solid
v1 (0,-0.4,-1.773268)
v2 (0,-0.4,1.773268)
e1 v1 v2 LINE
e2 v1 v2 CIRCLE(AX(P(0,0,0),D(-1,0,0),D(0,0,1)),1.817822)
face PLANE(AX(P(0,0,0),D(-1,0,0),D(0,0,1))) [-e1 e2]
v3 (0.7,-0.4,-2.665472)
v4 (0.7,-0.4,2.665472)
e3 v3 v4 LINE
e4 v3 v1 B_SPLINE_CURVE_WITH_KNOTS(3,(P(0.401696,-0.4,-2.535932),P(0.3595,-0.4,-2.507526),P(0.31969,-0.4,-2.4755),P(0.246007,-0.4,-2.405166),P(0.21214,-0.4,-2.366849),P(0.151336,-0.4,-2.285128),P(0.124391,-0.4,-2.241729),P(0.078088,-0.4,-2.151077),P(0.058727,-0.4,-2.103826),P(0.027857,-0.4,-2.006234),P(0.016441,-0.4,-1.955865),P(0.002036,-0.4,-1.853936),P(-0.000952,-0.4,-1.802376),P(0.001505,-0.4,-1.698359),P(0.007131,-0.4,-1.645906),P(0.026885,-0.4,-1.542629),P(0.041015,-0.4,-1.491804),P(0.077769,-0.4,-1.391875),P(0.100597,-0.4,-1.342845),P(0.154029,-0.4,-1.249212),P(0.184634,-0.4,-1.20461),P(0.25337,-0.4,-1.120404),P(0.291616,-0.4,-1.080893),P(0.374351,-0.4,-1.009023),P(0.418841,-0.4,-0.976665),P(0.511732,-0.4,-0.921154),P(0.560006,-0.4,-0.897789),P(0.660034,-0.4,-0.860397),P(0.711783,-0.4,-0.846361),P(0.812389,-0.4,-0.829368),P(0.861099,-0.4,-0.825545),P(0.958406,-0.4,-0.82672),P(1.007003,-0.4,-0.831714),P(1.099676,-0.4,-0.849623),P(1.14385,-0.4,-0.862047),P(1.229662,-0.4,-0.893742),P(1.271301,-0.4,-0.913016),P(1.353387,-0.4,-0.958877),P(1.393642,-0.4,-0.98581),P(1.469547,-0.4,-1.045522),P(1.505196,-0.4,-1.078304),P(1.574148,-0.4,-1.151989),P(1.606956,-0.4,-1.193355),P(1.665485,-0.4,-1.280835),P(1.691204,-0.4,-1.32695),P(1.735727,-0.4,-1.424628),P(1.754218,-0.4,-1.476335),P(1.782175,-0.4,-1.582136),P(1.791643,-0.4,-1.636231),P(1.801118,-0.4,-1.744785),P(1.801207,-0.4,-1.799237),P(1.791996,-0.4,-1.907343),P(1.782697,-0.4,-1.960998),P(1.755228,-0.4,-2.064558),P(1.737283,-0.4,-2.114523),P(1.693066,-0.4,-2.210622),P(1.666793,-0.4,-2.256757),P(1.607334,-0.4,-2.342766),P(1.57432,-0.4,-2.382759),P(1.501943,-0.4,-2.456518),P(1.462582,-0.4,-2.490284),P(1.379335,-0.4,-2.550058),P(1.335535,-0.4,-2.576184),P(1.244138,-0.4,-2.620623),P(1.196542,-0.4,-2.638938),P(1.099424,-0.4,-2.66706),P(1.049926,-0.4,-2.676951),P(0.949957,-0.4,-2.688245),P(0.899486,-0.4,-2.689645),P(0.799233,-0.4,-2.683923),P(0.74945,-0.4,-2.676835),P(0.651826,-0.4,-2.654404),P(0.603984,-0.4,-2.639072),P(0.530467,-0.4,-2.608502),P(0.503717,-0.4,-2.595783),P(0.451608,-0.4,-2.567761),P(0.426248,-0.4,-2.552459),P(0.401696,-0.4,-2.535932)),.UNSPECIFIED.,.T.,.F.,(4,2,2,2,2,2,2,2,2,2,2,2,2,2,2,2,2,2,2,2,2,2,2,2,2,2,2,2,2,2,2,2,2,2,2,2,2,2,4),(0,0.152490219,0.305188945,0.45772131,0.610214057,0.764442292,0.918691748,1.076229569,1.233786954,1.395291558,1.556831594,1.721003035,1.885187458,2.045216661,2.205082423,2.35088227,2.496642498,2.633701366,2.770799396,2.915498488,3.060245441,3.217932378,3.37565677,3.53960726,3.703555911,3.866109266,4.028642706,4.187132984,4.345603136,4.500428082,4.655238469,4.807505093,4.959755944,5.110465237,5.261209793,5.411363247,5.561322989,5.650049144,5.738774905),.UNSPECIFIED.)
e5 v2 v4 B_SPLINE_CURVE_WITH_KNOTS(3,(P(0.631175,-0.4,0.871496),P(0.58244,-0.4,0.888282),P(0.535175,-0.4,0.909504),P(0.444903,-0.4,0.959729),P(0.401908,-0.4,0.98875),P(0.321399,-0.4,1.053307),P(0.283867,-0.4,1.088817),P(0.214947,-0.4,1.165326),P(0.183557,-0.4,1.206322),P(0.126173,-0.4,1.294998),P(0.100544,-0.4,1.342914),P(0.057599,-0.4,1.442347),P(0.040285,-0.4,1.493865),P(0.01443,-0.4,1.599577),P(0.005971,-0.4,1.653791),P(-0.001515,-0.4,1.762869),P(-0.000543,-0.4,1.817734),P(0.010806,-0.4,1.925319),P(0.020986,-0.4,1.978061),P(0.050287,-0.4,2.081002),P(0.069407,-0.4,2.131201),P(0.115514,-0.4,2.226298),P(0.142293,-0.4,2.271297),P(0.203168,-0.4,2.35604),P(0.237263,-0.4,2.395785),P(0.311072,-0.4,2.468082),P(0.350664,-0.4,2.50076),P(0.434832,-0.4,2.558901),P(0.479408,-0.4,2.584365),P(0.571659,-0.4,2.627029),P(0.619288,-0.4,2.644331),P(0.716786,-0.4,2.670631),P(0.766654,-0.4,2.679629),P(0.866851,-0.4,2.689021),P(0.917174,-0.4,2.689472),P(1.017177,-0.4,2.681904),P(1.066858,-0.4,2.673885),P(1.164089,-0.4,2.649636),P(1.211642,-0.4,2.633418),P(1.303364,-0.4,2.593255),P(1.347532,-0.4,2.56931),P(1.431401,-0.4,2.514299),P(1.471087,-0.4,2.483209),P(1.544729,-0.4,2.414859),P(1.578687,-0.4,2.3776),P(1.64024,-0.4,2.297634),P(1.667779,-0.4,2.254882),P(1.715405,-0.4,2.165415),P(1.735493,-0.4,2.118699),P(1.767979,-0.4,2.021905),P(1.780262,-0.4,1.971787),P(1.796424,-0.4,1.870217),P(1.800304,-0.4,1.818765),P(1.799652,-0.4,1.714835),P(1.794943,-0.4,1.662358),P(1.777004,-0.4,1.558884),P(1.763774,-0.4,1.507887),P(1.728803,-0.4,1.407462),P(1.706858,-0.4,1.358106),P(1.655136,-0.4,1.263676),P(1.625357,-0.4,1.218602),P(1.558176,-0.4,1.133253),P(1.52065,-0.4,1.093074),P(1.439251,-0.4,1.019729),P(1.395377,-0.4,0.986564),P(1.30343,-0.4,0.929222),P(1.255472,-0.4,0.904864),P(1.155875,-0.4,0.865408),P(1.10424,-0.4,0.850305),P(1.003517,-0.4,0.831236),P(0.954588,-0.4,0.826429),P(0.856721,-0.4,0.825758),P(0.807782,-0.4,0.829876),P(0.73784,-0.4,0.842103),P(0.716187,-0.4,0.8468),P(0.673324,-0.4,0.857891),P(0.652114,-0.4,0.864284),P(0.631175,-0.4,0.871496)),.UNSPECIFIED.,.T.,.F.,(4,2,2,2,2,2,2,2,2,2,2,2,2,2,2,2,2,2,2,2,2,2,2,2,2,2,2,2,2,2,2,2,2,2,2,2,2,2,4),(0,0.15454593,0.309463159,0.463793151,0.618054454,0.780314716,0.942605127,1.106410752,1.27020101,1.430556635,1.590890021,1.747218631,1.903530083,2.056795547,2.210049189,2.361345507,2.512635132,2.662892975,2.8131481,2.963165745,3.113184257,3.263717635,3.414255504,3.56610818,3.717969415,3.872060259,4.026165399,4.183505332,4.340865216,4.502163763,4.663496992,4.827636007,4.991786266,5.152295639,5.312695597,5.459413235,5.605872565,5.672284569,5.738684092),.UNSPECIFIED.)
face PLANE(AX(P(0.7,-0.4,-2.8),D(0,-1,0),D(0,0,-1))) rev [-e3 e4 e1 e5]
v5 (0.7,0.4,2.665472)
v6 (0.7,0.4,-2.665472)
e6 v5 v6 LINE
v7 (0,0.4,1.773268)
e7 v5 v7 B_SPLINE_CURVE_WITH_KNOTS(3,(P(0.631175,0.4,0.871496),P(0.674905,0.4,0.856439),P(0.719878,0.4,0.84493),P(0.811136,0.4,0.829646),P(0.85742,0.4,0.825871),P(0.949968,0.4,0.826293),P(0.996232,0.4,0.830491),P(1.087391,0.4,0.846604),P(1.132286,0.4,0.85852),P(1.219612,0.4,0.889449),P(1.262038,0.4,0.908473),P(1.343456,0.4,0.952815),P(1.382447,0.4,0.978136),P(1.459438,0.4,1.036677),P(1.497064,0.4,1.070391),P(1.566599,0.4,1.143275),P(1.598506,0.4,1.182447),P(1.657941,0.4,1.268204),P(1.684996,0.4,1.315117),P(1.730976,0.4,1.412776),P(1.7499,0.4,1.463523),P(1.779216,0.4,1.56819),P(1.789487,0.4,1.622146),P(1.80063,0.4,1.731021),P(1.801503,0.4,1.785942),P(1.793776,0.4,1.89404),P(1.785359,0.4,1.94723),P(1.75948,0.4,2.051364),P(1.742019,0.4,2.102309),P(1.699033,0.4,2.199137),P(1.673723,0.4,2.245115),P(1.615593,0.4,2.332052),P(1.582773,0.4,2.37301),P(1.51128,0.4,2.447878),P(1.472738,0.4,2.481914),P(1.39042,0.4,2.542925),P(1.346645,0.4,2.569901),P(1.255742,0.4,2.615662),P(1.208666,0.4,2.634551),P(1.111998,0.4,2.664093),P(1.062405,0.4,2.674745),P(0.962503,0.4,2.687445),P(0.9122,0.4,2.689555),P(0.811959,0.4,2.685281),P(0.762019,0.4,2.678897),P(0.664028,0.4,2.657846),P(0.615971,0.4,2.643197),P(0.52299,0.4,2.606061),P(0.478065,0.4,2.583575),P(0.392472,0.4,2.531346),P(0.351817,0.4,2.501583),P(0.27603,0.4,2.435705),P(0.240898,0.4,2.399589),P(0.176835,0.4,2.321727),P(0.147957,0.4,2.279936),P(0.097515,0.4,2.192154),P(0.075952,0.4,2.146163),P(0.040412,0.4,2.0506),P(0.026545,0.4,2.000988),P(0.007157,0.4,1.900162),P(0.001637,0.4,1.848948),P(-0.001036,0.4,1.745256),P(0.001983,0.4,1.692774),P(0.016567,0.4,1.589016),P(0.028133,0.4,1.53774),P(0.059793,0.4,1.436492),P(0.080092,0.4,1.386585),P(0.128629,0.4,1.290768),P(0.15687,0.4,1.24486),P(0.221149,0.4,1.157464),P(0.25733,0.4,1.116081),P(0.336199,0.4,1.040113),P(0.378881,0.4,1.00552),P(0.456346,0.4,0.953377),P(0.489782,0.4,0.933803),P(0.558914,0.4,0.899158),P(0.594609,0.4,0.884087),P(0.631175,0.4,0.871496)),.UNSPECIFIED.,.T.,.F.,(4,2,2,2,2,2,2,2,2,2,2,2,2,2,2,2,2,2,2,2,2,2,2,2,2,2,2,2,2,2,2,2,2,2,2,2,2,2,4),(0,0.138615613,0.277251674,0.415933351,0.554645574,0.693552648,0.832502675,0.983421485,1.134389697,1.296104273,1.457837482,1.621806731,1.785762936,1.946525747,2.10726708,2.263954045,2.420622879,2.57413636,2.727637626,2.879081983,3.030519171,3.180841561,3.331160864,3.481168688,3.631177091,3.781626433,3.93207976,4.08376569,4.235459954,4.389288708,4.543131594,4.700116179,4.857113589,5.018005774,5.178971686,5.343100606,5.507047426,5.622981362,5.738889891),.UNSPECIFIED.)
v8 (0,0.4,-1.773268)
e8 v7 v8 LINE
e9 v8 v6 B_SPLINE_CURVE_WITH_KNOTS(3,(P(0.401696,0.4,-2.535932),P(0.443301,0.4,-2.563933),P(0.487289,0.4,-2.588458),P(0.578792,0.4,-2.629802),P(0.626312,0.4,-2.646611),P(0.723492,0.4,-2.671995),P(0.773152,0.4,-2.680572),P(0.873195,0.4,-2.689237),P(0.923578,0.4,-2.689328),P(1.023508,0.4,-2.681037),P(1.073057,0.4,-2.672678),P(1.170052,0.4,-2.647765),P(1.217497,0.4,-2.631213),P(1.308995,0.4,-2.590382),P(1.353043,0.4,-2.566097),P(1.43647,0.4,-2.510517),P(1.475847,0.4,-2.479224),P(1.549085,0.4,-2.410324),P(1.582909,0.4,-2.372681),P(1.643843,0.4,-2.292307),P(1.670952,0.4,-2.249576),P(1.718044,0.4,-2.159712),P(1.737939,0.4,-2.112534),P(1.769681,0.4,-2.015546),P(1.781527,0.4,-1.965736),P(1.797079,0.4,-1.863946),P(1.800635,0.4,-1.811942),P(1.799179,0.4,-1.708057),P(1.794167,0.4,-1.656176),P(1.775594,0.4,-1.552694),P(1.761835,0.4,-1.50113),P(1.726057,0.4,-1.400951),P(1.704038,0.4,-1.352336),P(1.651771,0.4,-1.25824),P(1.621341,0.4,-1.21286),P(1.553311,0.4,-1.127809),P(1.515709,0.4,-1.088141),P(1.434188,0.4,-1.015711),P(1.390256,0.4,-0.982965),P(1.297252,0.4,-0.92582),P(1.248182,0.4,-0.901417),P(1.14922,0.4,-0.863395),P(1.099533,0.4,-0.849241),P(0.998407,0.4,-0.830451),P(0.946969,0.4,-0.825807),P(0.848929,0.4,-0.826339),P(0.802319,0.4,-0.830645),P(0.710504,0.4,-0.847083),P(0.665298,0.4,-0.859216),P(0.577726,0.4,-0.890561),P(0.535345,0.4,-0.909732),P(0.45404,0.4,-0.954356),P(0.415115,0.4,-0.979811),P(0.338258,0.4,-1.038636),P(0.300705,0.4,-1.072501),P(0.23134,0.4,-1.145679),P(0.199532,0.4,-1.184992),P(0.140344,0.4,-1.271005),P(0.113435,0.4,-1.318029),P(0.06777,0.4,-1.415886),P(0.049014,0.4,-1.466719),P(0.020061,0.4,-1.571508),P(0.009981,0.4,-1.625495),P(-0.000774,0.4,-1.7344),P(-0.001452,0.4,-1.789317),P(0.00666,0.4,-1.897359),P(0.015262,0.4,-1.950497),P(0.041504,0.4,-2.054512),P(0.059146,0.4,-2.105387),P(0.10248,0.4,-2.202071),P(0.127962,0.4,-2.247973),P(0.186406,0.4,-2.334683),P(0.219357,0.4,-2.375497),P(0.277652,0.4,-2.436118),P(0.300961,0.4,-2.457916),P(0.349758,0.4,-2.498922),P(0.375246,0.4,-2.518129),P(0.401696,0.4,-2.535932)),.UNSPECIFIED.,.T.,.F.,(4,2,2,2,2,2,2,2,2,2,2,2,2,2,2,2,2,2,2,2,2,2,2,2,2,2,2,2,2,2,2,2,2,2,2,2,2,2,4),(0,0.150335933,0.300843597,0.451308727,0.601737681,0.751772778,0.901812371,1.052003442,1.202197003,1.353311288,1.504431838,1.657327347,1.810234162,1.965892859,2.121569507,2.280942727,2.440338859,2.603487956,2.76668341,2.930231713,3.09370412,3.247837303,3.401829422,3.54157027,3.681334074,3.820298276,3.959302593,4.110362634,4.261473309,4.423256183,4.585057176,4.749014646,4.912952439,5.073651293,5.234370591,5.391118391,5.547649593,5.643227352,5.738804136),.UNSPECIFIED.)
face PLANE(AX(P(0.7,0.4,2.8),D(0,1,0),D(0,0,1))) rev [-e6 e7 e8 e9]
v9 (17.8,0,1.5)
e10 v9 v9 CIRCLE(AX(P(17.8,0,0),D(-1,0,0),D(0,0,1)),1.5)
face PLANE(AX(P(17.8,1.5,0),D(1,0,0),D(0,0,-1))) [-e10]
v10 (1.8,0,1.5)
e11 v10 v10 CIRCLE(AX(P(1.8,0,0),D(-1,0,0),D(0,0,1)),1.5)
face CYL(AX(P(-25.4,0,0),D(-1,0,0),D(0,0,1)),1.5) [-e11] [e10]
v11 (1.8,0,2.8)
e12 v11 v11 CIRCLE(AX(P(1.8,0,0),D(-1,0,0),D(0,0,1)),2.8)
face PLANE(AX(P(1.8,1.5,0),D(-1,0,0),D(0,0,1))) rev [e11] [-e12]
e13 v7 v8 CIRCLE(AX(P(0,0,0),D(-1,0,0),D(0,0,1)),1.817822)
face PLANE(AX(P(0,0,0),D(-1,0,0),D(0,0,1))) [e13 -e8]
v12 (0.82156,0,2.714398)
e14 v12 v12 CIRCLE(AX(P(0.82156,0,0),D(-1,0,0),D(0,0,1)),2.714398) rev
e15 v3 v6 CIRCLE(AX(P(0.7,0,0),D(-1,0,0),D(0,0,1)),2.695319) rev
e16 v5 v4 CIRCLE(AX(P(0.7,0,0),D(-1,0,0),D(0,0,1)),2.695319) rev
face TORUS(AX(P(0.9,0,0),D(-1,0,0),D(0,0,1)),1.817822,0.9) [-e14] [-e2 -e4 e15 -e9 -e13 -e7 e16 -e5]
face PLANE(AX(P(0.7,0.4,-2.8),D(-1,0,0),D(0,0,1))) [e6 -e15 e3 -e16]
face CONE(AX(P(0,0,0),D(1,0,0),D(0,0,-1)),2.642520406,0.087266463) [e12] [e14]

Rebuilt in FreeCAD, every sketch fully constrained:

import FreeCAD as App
import Part
import Sketcher

V = App.Vector
Q = App.Units.Quantity


def edges_at(feature, points):
    """Names of the edges that pass closest to the given points."""
    edges = feature.Shape.Edges
    near = lambda p: min(range(len(edges)), key=lambda i: edges[i].distToShape(Part.Vertex(*p))[0])
    return sorted({f"Edge{near(p) + 1}" for p in points})


def add_polygon(sketch, points):
    """Adds a closed chain of lines whose ends are joined by coincident constraints."""
    first, n = sketch.GeometryCount, len(points)
    for a, b in zip(points, points[1:] + points[:1]):
        sketch.addGeometry(Part.LineSegment(App.Vector(*a, 0), App.Vector(*b, 0)), False)
    for i in range(n):
        sketch.addConstraint(Sketcher.Constraint("Coincident", first + i, 2, first + (i + 1) % n, 1))

doc = App.newDocument("Part")
body = doc.addObject("PartDesign::Body", "Body")

sketch1 = body.newObject("Sketcher::SketchObject", "Sketch")
sketch1.AttachmentSupport = (doc.getObject("XY_Plane"), [""])
sketch1.MapMode = "FlatFace"
add_polygon(sketch1, [(1.8, 1.5), (1.8, 2.8), (0, 2.6), (0, 0), (17.8, 0), (17.8, 1.5)])
sketch1.addConstraint(Sketcher.Constraint("Vertical", 0))
sketch1.addConstraint(Sketcher.Constraint("Vertical", 2))
sketch1.addConstraint(Sketcher.Constraint("Horizontal", 3))
sketch1.addConstraint(Sketcher.Constraint("Vertical", 4))
sketch1.addConstraint(Sketcher.Constraint("Horizontal", 5))
sketch1.addConstraint(Sketcher.Constraint("Coincident", 2, 2, -1, 1))
sketch1.addConstraint(Sketcher.Constraint("DistanceX", 5, 2, 5, 1, Q("16 mm")))
sketch1.addConstraint(Sketcher.Constraint("Angle", 1, Q("-175 deg")))
sketch1.addConstraint(Sketcher.Constraint("DistanceX", 3, 1, 3, 2, Q("17.8 mm")))
sketch1.addConstraint(Sketcher.Constraint("DistanceY", 0, 1, 0, 2, Q("1.3 mm")))
sketch1.addConstraint(Sketcher.Constraint("DistanceY", 4, 1, 4, 2, Q("1.5 mm")))
revolution = body.newObject("PartDesign::Revolution", "Revolution")
revolution.Profile = sketch1
revolution.ReferenceAxis = (sketch1, ["H_Axis"])
revolution.Angle = 360
doc.recompute()

fillet = body.newObject("PartDesign::Fillet", "Fillet")
fillet.Base = (revolution, edges_at(revolution, [(0, 0, -2.643)]))
fillet.Radius = 0.9

sketch2 = body.newObject("Sketcher::SketchObject", "Sketch001")
sketch2.AttachmentSupport = (doc.getObject("YZ_Plane"), [""])
sketch2.MapMode = "FlatFace"
add_polygon(sketch2, [(0.4, 2.8), (-0.4, 2.8), (-0.4, -2.8), (0.4, -2.8)])
sketch2.addConstraint(Sketcher.Constraint("Horizontal", 0))
sketch2.addConstraint(Sketcher.Constraint("Vertical", 1))
sketch2.addConstraint(Sketcher.Constraint("Horizontal", 2))
sketch2.addConstraint(Sketcher.Constraint("Vertical", 3))
sketch2.addConstraint(Sketcher.Constraint("Symmetric", 0, 2, 2, 2, -1, 1))
sketch2.addConstraint(Sketcher.Constraint("DistanceX", 0, 2, 0, 1, Q("0.8 mm")))
sketch2.addConstraint(Sketcher.Constraint("DistanceY", 1, 2, 1, 1, Q("5.6 mm")))
pocket1 = body.newObject("PartDesign::Pocket", "Pocket")
pocket1.Profile = sketch2
pocket1.Length = 0.7
pocket1.Reversed = True

doc.recompute()
